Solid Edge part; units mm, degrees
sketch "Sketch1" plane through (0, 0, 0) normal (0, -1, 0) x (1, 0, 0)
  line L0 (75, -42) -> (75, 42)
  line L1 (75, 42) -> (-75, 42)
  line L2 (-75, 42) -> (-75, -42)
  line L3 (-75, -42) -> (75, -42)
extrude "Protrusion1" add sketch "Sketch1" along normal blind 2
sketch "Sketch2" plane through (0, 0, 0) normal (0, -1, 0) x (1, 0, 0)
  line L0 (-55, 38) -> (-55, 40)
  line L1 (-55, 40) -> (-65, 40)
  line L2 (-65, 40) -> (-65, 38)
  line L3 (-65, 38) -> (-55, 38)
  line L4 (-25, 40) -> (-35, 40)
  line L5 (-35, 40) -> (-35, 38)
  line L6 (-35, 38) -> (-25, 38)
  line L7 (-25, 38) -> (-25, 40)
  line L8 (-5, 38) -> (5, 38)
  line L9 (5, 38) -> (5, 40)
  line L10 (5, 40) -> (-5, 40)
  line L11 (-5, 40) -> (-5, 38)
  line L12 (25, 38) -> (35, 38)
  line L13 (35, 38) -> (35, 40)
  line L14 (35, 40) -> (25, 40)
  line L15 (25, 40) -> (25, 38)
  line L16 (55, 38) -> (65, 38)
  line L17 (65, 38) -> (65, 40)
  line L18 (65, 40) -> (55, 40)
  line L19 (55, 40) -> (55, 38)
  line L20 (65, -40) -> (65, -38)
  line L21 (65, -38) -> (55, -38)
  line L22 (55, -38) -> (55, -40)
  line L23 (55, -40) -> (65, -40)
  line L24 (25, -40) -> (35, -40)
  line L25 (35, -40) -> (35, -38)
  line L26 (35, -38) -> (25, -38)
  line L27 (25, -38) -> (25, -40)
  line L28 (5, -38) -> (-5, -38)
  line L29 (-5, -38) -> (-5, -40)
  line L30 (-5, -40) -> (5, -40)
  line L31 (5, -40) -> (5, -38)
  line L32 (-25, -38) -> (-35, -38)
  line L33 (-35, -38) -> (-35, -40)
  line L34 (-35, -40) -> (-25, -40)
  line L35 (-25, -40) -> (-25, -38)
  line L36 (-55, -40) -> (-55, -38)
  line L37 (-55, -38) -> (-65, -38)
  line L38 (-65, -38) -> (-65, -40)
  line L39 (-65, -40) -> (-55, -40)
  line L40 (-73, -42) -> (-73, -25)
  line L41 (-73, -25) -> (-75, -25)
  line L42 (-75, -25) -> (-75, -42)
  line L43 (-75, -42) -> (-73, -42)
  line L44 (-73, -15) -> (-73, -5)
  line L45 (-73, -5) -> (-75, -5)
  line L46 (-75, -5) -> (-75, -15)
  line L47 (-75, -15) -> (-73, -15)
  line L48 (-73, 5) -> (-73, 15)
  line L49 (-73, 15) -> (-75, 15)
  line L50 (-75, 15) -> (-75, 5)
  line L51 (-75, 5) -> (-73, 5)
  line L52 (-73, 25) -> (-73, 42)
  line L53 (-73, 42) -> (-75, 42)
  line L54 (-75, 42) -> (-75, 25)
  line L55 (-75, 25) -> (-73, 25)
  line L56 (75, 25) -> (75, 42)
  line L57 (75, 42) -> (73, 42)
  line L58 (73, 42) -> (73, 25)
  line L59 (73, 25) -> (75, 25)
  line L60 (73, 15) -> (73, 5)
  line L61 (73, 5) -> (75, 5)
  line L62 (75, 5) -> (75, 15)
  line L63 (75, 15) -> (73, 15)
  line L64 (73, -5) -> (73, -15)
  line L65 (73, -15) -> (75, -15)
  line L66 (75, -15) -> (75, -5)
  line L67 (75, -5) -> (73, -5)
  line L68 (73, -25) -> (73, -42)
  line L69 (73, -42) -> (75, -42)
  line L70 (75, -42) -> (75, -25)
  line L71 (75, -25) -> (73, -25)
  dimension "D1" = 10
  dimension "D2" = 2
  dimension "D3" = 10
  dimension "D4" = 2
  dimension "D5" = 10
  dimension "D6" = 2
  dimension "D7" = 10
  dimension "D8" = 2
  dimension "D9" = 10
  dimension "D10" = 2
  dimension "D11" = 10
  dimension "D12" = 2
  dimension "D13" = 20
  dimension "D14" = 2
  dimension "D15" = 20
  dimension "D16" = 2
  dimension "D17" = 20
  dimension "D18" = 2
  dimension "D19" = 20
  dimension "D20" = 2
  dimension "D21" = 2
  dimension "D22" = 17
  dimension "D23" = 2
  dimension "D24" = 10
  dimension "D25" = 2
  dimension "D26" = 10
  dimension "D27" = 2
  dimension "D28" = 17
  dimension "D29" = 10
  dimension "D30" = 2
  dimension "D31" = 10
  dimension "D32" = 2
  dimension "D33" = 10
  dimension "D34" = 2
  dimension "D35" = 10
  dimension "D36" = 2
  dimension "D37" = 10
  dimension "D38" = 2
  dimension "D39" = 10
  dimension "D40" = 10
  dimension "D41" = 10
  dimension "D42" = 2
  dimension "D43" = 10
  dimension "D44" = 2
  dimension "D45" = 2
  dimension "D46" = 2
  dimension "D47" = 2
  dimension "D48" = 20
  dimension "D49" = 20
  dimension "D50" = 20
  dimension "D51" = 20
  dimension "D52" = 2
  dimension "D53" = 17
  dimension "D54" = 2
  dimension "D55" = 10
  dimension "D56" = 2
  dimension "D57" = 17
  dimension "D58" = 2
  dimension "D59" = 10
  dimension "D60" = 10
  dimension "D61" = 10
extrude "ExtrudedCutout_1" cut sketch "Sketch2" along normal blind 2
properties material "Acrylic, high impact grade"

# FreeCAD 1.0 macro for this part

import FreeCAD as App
import Part
import Sketcher
from FreeCAD import Vector
Q = App.Units.Quantity

doc = App.newDocument("Part")
body = doc.addObject("PartDesign::Body", "Body")

# Sketch on XZ plane
sketch1 = doc.addObject("Sketcher::SketchObject", "Sketch")
body.addObject(sketch1)
sketch1.AttachmentSupport = (doc.XZ_Plane, [""])
sketch1.MapMode = "FlatFace"
sketch1.addGeometry([
    Part.LineSegment(Vector(-75, -42, 0), Vector(75, -42, 0)),
    Part.LineSegment(Vector(75, -42, 0), Vector(75, 42, 0)),
    Part.LineSegment(Vector(75, 42, 0), Vector(-75, 42, 0)),
    Part.LineSegment(Vector(-75, 42, 0), Vector(-75, -42, 0)),
], False)
sketch1.addConstraint([
    Sketcher.Constraint("Coincident", 0, 2, 1, 1),
    Sketcher.Constraint("Coincident", 1, 2, 2, 1),
    Sketcher.Constraint("Coincident", 2, 2, 3, 1),
    Sketcher.Constraint("Coincident", 3, 2, 0, 1),
    Sketcher.Constraint("Horizontal", 0),
    Sketcher.Constraint("Vertical", 1),
    Sketcher.Constraint("Horizontal", 2),
    Sketcher.Constraint("Vertical", 3),
    Sketcher.Constraint("Symmetric", 0, 2, 2, 2, -1, 1),
    Sketcher.Constraint("DistanceX", 0, 1, 0, 2, Q("150 mm")),
    Sketcher.Constraint("DistanceY", 1, 1, 1, 2, Q("84 mm")),
])
pad1 = doc.addObject("PartDesign::Pad", "Pad")
body.addObject(pad1)
pad1.Profile = sketch1
pad1.Length = 2

# Sketch on XZ plane
sketch2 = doc.addObject("Sketcher::SketchObject", "Sketch001")
body.addObject(sketch2)
sketch2.AttachmentSupport = (doc.XZ_Plane, [""])
sketch2.MapMode = "FlatFace"
sketch2.addGeometry([
    Part.LineSegment(Vector(-65, 38, 0), Vector(-55, 38, 0)),  # 0
    Part.LineSegment(Vector(-55, 38, 0), Vector(-55, 40, 0)),  # 1
    Part.LineSegment(Vector(-55, 40, 0), Vector(-65, 40, 0)),  # 2
    Part.LineSegment(Vector(-65, 40, 0), Vector(-65, 38, 0)),  # 3
    Part.LineSegment(Vector(-25, 38, 0), Vector(-25, 40, 0)),  # 4
    Part.LineSegment(Vector(-25, 40, 0), Vector(-35, 40, 0)),  # 5
    Part.LineSegment(Vector(-35, 40, 0), Vector(-35, 38, 0)),  # 6
    Part.LineSegment(Vector(-35, 38, 0), Vector(-25, 38, 0)),  # 7
    Part.LineSegment(Vector(-5, 40, 0), Vector(-5, 38, 0)),  # 8
    Part.LineSegment(Vector(-5, 38, 0), Vector(5, 38, 0)),  # 9
    Part.LineSegment(Vector(5, 38, 0), Vector(5, 40, 0)),  # 10
    Part.LineSegment(Vector(5, 40, 0), Vector(-5, 40, 0)),  # 11
    Part.LineSegment(Vector(25, 40, 0), Vector(25, 38, 0)),  # 12
    Part.LineSegment(Vector(25, 38, 0), Vector(35, 38, 0)),  # 13
    Part.LineSegment(Vector(35, 38, 0), Vector(35, 40, 0)),  # 14
    Part.LineSegment(Vector(35, 40, 0), Vector(25, 40, 0)),  # 15
    Part.LineSegment(Vector(55, 40, 0), Vector(55, 38, 0)),  # 16
    Part.LineSegment(Vector(55, 38, 0), Vector(65, 38, 0)),  # 17
    Part.LineSegment(Vector(65, 38, 0), Vector(65, 40, 0)),  # 18
    Part.LineSegment(Vector(65, 40, 0), Vector(55, 40, 0)),  # 19
    Part.LineSegment(Vector(55, -40, 0), Vector(65, -40, 0)),  # 20
    Part.LineSegment(Vector(65, -40, 0), Vector(65, -38, 0)),  # 21
    Part.LineSegment(Vector(65, -38, 0), Vector(55, -38, 0)),  # 22
    Part.LineSegment(Vector(55, -38, 0), Vector(55, -40, 0)),  # 23
    Part.LineSegment(Vector(25, -38, 0), Vector(25, -40, 0)),  # 24
    Part.LineSegment(Vector(25, -40, 0), Vector(35, -40, 0)),  # 25
    Part.LineSegment(Vector(35, -40, 0), Vector(35, -38, 0)),  # 26
    Part.LineSegment(Vector(35, -38, 0), Vector(25, -38, 0)),  # 27
    Part.LineSegment(Vector(5, -40, 0), Vector(5, -38, 0)),  # 28
    Part.LineSegment(Vector(5, -38, 0), Vector(-5, -38, 0)),  # 29
    Part.LineSegment(Vector(-5, -38, 0), Vector(-5, -40, 0)),  # 30
    Part.LineSegment(Vector(-5, -40, 0), Vector(5, -40, 0)),  # 31
    Part.LineSegment(Vector(-25, -40, 0), Vector(-25, -38, 0)),  # 32
    Part.LineSegment(Vector(-25, -38, 0), Vector(-35, -38, 0)),  # 33
    Part.LineSegment(Vector(-35, -38, 0), Vector(-35, -40, 0)),  # 34
    Part.LineSegment(Vector(-35, -40, 0), Vector(-25, -40, 0)),  # 35
    Part.LineSegment(Vector(-65, -40, 0), Vector(-55, -40, 0)),  # 36
    Part.LineSegment(Vector(-55, -40, 0), Vector(-55, -38, 0)),  # 37
    Part.LineSegment(Vector(-55, -38, 0), Vector(-65, -38, 0)),  # 38
    Part.LineSegment(Vector(-65, -38, 0), Vector(-65, -40, 0)),  # 39
    Part.LineSegment(Vector(-75, -42, 0), Vector(-73, -42, 0)),  # 40
    Part.LineSegment(Vector(-73, -42, 0), Vector(-73, -25, 0)),  # 41
    Part.LineSegment(Vector(-73, -25, 0), Vector(-75, -25, 0)),  # 42
    Part.LineSegment(Vector(-75, -25, 0), Vector(-75, -42, 0)),  # 43
    Part.LineSegment(Vector(-75, -15, 0), Vector(-73, -15, 0)),  # 44
    Part.LineSegment(Vector(-73, -15, 0), Vector(-73, -5, 0)),  # 45
    Part.LineSegment(Vector(-73, -5, 0), Vector(-75, -5, 0)),  # 46
    Part.LineSegment(Vector(-75, -5, 0), Vector(-75, -15, 0)),  # 47
    Part.LineSegment(Vector(-75, 5, 0), Vector(-73, 5, 0)),  # 48
    Part.LineSegment(Vector(-73, 5, 0), Vector(-73, 15, 0)),  # 49
    Part.LineSegment(Vector(-73, 15, 0), Vector(-75, 15, 0)),  # 50
    Part.LineSegment(Vector(-75, 15, 0), Vector(-75, 5, 0)),  # 51
    Part.LineSegment(Vector(-75, 25, 0), Vector(-73, 25, 0)),  # 52
    Part.LineSegment(Vector(-73, 25, 0), Vector(-73, 42, 0)),  # 53
    Part.LineSegment(Vector(-73, 42, 0), Vector(-75, 42, 0)),  # 54
    Part.LineSegment(Vector(-75, 42, 0), Vector(-75, 25, 0)),  # 55
    Part.LineSegment(Vector(73, 25, 0), Vector(75, 25, 0)),  # 56
    Part.LineSegment(Vector(75, 25, 0), Vector(75, 42, 0)),  # 57
    Part.LineSegment(Vector(75, 42, 0), Vector(73, 42, 0)),  # 58
    Part.LineSegment(Vector(73, 42, 0), Vector(73, 25, 0)),  # 59
    Part.LineSegment(Vector(75, 15, 0), Vector(73, 15, 0)),  # 60
    Part.LineSegment(Vector(73, 15, 0), Vector(73, 5, 0)),  # 61
    Part.LineSegment(Vector(73, 5, 0), Vector(75, 5, 0)),  # 62
    Part.LineSegment(Vector(75, 5, 0), Vector(75, 15, 0)),  # 63
    Part.LineSegment(Vector(75, -5, 0), Vector(73, -5, 0)),  # 64
    Part.LineSegment(Vector(73, -5, 0), Vector(73, -15, 0)),  # 65
    Part.LineSegment(Vector(73, -15, 0), Vector(75, -15, 0)),  # 66
    Part.LineSegment(Vector(75, -15, 0), Vector(75, -5, 0)),  # 67
    Part.LineSegment(Vector(75, -25, 0), Vector(73, -25, 0)),  # 68
    Part.LineSegment(Vector(73, -25, 0), Vector(73, -42, 0)),  # 69
    Part.LineSegment(Vector(73, -42, 0), Vector(75, -42, 0)),  # 70
    Part.LineSegment(Vector(75, -42, 0), Vector(75, -25, 0)),  # 71
], False)
sketch2.addConstraint([
    Sketcher.Constraint("Coincident", 0, 2, 1, 1),
    Sketcher.Constraint("Coincident", 1, 2, 2, 1),
    Sketcher.Constraint("Coincident", 2, 2, 3, 1),
    Sketcher.Constraint("Coincident", 3, 2, 0, 1),
    Sketcher.Constraint("Coincident", 4, 2, 5, 1),
    Sketcher.Constraint("Coincident", 5, 2, 6, 1),
    Sketcher.Constraint("Coincident", 6, 2, 7, 1),
    Sketcher.Constraint("Coincident", 7, 2, 4, 1),
    Sketcher.Constraint("Coincident", 8, 2, 9, 1),
    Sketcher.Constraint("Coincident", 9, 2, 10, 1),
    Sketcher.Constraint("Coincident", 10, 2, 11, 1),
    Sketcher.Constraint("Coincident", 11, 2, 8, 1),
    Sketcher.Constraint("Coincident", 12, 2, 13, 1),
    Sketcher.Constraint("Coincident", 13, 2, 14, 1),
    Sketcher.Constraint("Coincident", 14, 2, 15, 1),
    Sketcher.Constraint("Coincident", 15, 2, 12, 1),
    Sketcher.Constraint("Coincident", 16, 2, 17, 1),
    Sketcher.Constraint("Coincident", 17, 2, 18, 1),
    Sketcher.Constraint("Coincident", 18, 2, 19, 1),
    Sketcher.Constraint("Coincident", 19, 2, 16, 1),
    Sketcher.Constraint("Coincident", 20, 2, 21, 1),
    Sketcher.Constraint("Coincident", 21, 2, 22, 1),
    Sketcher.Constraint("Coincident", 22, 2, 23, 1),
    Sketcher.Constraint("Coincident", 23, 2, 20, 1),
    Sketcher.Constraint("Coincident", 24, 2, 25, 1),
    Sketcher.Constraint("Coincident", 25, 2, 26, 1),
    Sketcher.Constraint("Coincident", 26, 2, 27, 1),
    Sketcher.Constraint("Coincident", 27, 2, 24, 1),
    Sketcher.Constraint("Coincident", 28, 2, 29, 1),
    Sketcher.Constraint("Coincident", 29, 2, 30, 1),
    Sketcher.Constraint("Coincident", 30, 2, 31, 1),
    Sketcher.Constraint("Coincident", 31, 2, 28, 1),
    Sketcher.Constraint("Coincident", 32, 2, 33, 1),
    Sketcher.Constraint("Coincident", 33, 2, 34, 1),
    Sketcher.Constraint("Coincident", 34, 2, 35, 1),
    Sketcher.Constraint("Coincident", 35, 2, 32, 1),
    Sketcher.Constraint("Coincident", 36, 2, 37, 1),
    Sketcher.Constraint("Coincident", 37, 2, 38, 1),
    Sketcher.Constraint("Coincident", 38, 2, 39, 1),
    Sketcher.Constraint("Coincident", 39, 2, 36, 1),
    Sketcher.Constraint("Coincident", 40, 2, 41, 1),
    Sketcher.Constraint("Coincident", 41, 2, 42, 1),
    Sketcher.Constraint("Coincident", 42, 2, 43, 1),
    Sketcher.Constraint("Coincident", 43, 2, 40, 1),
    Sketcher.Constraint("Coincident", 44, 2, 45, 1),
    Sketcher.Constraint("Coincident", 45, 2, 46, 1),
    Sketcher.Constraint("Coincident", 46, 2, 47, 1),
    Sketcher.Constraint("Coincident", 47, 2, 44, 1),
    Sketcher.Constraint("Coincident", 48, 2, 49, 1),
    Sketcher.Constraint("Coincident", 49, 2, 50, 1),
    Sketcher.Constraint("Coincident", 50, 2, 51, 1),
    Sketcher.Constraint("Coincident", 51, 2, 48, 1),
    Sketcher.Constraint("Coincident", 52, 2, 53, 1),
    Sketcher.Constraint("Coincident", 53, 2, 54, 1),
    Sketcher.Constraint("Coincident", 54, 2, 55, 1),
    Sketcher.Constraint("Coincident", 55, 2, 52, 1),
    Sketcher.Constraint("Coincident", 56, 2, 57, 1),
    Sketcher.Constraint("Coincident", 57, 2, 58, 1),
    Sketcher.Constraint("Coincident", 58, 2, 59, 1),
    Sketcher.Constraint("Coincident", 59, 2, 56, 1),
    Sketcher.Constraint("Coincident", 60, 2, 61, 1),
    Sketcher.Constraint("Coincident", 61, 2, 62, 1),
    Sketcher.Constraint("Coincident", 62, 2, 63, 1),
    Sketcher.Constraint("Coincident", 63, 2, 60, 1),
    Sketcher.Constraint("Coincident", 64, 2, 65, 1),
    Sketcher.Constraint("Coincident", 65, 2, 66, 1),
    Sketcher.Constraint("Coincident", 66, 2, 67, 1),
    Sketcher.Constraint("Coincident", 67, 2, 64, 1),
    Sketcher.Constraint("Coincident", 68, 2, 69, 1),
    Sketcher.Constraint("Coincident", 69, 2, 70, 1),
    Sketcher.Constraint("Coincident", 70, 2, 71, 1),
    Sketcher.Constraint("Coincident", 71, 2, 68, 1),
    Sketcher.Constraint("Horizontal", 0),
    Sketcher.Constraint("Vertical", 1),
    Sketcher.Constraint("Horizontal", 2),
    Sketcher.Constraint("Vertical", 3),
    Sketcher.Constraint("Vertical", 4),
    Sketcher.Constraint("Horizontal", 5),
    Sketcher.Constraint("Vertical", 6),
    Sketcher.Constraint("Horizontal", 7),
    Sketcher.Constraint("Vertical", 8),
    Sketcher.Constraint("Horizontal", 9),
    Sketcher.Constraint("Vertical", 10),
    Sketcher.Constraint("Horizontal", 11),
    Sketcher.Constraint("Vertical", 12),
    Sketcher.Constraint("Horizontal", 13),
    Sketcher.Constraint("Vertical", 14),
    Sketcher.Constraint("Horizontal", 15),
    Sketcher.Constraint("Vertical", 16),
    Sketcher.Constraint("Horizontal", 17),
    Sketcher.Constraint("Vertical", 18),
    Sketcher.Constraint("Horizontal", 19),
    Sketcher.Constraint("Horizontal", 20),
    Sketcher.Constraint("Vertical", 21),
    Sketcher.Constraint("Horizontal", 22),
    Sketcher.Constraint("Vertical", 23),
    Sketcher.Constraint("Vertical", 24),
    Sketcher.Constraint("Horizontal", 25),
    Sketcher.Constraint("Vertical", 26),
    Sketcher.Constraint("Horizontal", 27),
    Sketcher.Constraint("Vertical", 28),
    Sketcher.Constraint("Horizontal", 29),
    Sketcher.Constraint("Vertical", 30),
    Sketcher.Constraint("Horizontal", 31),
    Sketcher.Constraint("Vertical", 32),
    Sketcher.Constraint("Horizontal", 33),
    Sketcher.Constraint("Vertical", 34),
    Sketcher.Constraint("Horizontal", 35),
    Sketcher.Constraint("Horizontal", 36),
    Sketcher.Constraint("Vertical", 37),
    Sketcher.Constraint("Horizontal", 38),
    Sketcher.Constraint("Vertical", 39),
    Sketcher.Constraint("Horizontal", 40),
    Sketcher.Constraint("Vertical", 41),
    Sketcher.Constraint("Horizontal", 42),
    Sketcher.Constraint("Vertical", 43),
    Sketcher.Constraint("Horizontal", 44),
    Sketcher.Constraint("Vertical", 45),
    Sketcher.Constraint("Horizontal", 46),
    Sketcher.Constraint("Vertical", 47),
    Sketcher.Constraint("Horizontal", 48),
    Sketcher.Constraint("Vertical", 49),
    Sketcher.Constraint("Horizontal", 50),
    Sketcher.Constraint("Vertical", 51),
    Sketcher.Constraint("Horizontal", 52),
    Sketcher.Constraint("Vertical", 53),
    Sketcher.Constraint("Horizontal", 54),
    Sketcher.Constraint("Vertical", 55),
    Sketcher.Constraint("Horizontal", 56),
    Sketcher.Constraint("Vertical", 57),
    Sketcher.Constraint("Horizontal", 58),
    Sketcher.Constraint("Vertical", 59),
    Sketcher.Constraint("Horizontal", 60),
    Sketcher.Constraint("Vertical", 61),
    Sketcher.Constraint("Horizontal", 62),
    Sketcher.Constraint("Vertical", 63),
    Sketcher.Constraint("Horizontal", 64),
    Sketcher.Constraint("Vertical", 65),
    Sketcher.Constraint("Horizontal", 66),
    Sketcher.Constraint("Vertical", 67),
    Sketcher.Constraint("Horizontal", 68),
    Sketcher.Constraint("Vertical", 69),
    Sketcher.Constraint("Horizontal", 70),
    Sketcher.Constraint("Vertical", 71),
    Sketcher.Constraint("Symmetric", 2, 2, 20, 2, -1, 1),
    Sketcher.Constraint("Symmetric", 0, 2, 22, 2, -1, 1),
    Sketcher.Constraint("Symmetric", 4, 2, 24, 2, -1, 1),
    Sketcher.Constraint("Symmetric", 6, 2, 26, 2, -1, 1),
    Sketcher.Constraint("Symmetric", 8, 2, 28, 2, -1, 1),
    Sketcher.Constraint("Symmetric", 10, 2, 30, 2, -1, 1),
    Sketcher.Constraint("Symmetric", 12, 2, 32, 2, -1, 1),
    Sketcher.Constraint("Symmetric", 14, 2, 34, 2, -1, 1),
    Sketcher.Constraint("Symmetric", 19, 2, 36, 2, -1, 1),
    Sketcher.Constraint("Symmetric", 17, 2, 38, 2, -1, 1),
    Sketcher.Constraint("Symmetric", 42, 2, 56, 2, -1, 1),
    Sketcher.Constraint("Symmetric", 40, 2, 58, 2, -1, 1),
    Sketcher.Constraint("Symmetric", 44, 2, 60, 2, -1, 1),
    Sketcher.Constraint("Symmetric", 46, 2, 62, 2, -1, 1),
    Sketcher.Constraint("Symmetric", 48, 2, 64, 2, -1, 1),
    Sketcher.Constraint("Symmetric", 50, 2, 66, 2, -1, 1),
    Sketcher.Constraint("Symmetric", 52, 2, 68, 2, -1, 1),
    Sketcher.Constraint("Symmetric", 54, 2, 70, 2, -1, 1),
    Sketcher.Constraint("Symmetric", 7, 2, 12, 2, -2),
    Sketcher.Constraint("Symmetric", 5, 2, 14, 2, -2),
    Sketcher.Constraint("Symmetric", 0, 2, 16, 2, -2),
    Sketcher.Constraint("Symmetric", 2, 2, 18, 2, -2),
    Sketcher.Constraint("Symmetric", 55, 2, 56, 2, -2),
    Sketcher.Constraint("Symmetric", 53, 2, 58, 2, -2),
    Sketcher.Constraint("Symmetric", 49, 2, 60, 2, -2),
    Sketcher.Constraint("Symmetric", 51, 2, 62, 2, -2),
    Sketcher.Constraint("Horizontal", 2, 2, 4, 2),
    Sketcher.Constraint("Horizontal", 3, 2, 6, 2),
    Sketcher.Constraint("Horizontal", 7, 2, 8, 2),
    Sketcher.Constraint("Horizontal", 5, 2, 10, 2),
    Sketcher.Constraint("Vertical", 10, 2, 28, 2),
    Sketcher.Constraint("Vertical", 41, 2, 44, 2),
    Sketcher.Constraint("Vertical", 43, 2, 46, 2),
    Sketcher.Constraint("Equal", 2, 5),
    Sketcher.Constraint("Equal", 7, 9),
    Sketcher.Constraint("Equal", 70, 1),
    Sketcher.Constraint("Equal", 38, 45),
    Sketcher.Constraint("DistanceX", 0, 1, 0, 2, Q("10 mm")),
    Sketcher.Constraint("DistanceX", 40, 1, 40, 2, Q("2 mm")),
    Sketcher.Constraint("DistanceY", 41, 1, 41, 2, Q("17 mm")),
    Sketcher.Constraint("DistanceX", 0, 2, -1, 1, Q("55 mm")),
    Sketcher.Constraint("DistanceY", -1, 1, 0, 2, Q("38 mm")),
    Sketcher.Constraint("DistanceX", 4, 2, -1, 1, Q("25 mm")),
    Sketcher.Constraint("DistanceX", 40, 2, -1, 1, Q("73 mm")),
    Sketcher.Constraint("DistanceY", 40, 2, -1, 1, Q("42 mm")),
    Sketcher.Constraint("DistanceY", 44, 2, -1, 1, Q("15 mm")),
])
pocket1 = doc.addObject("PartDesign::Pocket", "Pocket")
body.addObject(pocket1)
pocket1.Profile = sketch2
pocket1.Length = 2
pocket1.Reversed = True

doc.recompute()
